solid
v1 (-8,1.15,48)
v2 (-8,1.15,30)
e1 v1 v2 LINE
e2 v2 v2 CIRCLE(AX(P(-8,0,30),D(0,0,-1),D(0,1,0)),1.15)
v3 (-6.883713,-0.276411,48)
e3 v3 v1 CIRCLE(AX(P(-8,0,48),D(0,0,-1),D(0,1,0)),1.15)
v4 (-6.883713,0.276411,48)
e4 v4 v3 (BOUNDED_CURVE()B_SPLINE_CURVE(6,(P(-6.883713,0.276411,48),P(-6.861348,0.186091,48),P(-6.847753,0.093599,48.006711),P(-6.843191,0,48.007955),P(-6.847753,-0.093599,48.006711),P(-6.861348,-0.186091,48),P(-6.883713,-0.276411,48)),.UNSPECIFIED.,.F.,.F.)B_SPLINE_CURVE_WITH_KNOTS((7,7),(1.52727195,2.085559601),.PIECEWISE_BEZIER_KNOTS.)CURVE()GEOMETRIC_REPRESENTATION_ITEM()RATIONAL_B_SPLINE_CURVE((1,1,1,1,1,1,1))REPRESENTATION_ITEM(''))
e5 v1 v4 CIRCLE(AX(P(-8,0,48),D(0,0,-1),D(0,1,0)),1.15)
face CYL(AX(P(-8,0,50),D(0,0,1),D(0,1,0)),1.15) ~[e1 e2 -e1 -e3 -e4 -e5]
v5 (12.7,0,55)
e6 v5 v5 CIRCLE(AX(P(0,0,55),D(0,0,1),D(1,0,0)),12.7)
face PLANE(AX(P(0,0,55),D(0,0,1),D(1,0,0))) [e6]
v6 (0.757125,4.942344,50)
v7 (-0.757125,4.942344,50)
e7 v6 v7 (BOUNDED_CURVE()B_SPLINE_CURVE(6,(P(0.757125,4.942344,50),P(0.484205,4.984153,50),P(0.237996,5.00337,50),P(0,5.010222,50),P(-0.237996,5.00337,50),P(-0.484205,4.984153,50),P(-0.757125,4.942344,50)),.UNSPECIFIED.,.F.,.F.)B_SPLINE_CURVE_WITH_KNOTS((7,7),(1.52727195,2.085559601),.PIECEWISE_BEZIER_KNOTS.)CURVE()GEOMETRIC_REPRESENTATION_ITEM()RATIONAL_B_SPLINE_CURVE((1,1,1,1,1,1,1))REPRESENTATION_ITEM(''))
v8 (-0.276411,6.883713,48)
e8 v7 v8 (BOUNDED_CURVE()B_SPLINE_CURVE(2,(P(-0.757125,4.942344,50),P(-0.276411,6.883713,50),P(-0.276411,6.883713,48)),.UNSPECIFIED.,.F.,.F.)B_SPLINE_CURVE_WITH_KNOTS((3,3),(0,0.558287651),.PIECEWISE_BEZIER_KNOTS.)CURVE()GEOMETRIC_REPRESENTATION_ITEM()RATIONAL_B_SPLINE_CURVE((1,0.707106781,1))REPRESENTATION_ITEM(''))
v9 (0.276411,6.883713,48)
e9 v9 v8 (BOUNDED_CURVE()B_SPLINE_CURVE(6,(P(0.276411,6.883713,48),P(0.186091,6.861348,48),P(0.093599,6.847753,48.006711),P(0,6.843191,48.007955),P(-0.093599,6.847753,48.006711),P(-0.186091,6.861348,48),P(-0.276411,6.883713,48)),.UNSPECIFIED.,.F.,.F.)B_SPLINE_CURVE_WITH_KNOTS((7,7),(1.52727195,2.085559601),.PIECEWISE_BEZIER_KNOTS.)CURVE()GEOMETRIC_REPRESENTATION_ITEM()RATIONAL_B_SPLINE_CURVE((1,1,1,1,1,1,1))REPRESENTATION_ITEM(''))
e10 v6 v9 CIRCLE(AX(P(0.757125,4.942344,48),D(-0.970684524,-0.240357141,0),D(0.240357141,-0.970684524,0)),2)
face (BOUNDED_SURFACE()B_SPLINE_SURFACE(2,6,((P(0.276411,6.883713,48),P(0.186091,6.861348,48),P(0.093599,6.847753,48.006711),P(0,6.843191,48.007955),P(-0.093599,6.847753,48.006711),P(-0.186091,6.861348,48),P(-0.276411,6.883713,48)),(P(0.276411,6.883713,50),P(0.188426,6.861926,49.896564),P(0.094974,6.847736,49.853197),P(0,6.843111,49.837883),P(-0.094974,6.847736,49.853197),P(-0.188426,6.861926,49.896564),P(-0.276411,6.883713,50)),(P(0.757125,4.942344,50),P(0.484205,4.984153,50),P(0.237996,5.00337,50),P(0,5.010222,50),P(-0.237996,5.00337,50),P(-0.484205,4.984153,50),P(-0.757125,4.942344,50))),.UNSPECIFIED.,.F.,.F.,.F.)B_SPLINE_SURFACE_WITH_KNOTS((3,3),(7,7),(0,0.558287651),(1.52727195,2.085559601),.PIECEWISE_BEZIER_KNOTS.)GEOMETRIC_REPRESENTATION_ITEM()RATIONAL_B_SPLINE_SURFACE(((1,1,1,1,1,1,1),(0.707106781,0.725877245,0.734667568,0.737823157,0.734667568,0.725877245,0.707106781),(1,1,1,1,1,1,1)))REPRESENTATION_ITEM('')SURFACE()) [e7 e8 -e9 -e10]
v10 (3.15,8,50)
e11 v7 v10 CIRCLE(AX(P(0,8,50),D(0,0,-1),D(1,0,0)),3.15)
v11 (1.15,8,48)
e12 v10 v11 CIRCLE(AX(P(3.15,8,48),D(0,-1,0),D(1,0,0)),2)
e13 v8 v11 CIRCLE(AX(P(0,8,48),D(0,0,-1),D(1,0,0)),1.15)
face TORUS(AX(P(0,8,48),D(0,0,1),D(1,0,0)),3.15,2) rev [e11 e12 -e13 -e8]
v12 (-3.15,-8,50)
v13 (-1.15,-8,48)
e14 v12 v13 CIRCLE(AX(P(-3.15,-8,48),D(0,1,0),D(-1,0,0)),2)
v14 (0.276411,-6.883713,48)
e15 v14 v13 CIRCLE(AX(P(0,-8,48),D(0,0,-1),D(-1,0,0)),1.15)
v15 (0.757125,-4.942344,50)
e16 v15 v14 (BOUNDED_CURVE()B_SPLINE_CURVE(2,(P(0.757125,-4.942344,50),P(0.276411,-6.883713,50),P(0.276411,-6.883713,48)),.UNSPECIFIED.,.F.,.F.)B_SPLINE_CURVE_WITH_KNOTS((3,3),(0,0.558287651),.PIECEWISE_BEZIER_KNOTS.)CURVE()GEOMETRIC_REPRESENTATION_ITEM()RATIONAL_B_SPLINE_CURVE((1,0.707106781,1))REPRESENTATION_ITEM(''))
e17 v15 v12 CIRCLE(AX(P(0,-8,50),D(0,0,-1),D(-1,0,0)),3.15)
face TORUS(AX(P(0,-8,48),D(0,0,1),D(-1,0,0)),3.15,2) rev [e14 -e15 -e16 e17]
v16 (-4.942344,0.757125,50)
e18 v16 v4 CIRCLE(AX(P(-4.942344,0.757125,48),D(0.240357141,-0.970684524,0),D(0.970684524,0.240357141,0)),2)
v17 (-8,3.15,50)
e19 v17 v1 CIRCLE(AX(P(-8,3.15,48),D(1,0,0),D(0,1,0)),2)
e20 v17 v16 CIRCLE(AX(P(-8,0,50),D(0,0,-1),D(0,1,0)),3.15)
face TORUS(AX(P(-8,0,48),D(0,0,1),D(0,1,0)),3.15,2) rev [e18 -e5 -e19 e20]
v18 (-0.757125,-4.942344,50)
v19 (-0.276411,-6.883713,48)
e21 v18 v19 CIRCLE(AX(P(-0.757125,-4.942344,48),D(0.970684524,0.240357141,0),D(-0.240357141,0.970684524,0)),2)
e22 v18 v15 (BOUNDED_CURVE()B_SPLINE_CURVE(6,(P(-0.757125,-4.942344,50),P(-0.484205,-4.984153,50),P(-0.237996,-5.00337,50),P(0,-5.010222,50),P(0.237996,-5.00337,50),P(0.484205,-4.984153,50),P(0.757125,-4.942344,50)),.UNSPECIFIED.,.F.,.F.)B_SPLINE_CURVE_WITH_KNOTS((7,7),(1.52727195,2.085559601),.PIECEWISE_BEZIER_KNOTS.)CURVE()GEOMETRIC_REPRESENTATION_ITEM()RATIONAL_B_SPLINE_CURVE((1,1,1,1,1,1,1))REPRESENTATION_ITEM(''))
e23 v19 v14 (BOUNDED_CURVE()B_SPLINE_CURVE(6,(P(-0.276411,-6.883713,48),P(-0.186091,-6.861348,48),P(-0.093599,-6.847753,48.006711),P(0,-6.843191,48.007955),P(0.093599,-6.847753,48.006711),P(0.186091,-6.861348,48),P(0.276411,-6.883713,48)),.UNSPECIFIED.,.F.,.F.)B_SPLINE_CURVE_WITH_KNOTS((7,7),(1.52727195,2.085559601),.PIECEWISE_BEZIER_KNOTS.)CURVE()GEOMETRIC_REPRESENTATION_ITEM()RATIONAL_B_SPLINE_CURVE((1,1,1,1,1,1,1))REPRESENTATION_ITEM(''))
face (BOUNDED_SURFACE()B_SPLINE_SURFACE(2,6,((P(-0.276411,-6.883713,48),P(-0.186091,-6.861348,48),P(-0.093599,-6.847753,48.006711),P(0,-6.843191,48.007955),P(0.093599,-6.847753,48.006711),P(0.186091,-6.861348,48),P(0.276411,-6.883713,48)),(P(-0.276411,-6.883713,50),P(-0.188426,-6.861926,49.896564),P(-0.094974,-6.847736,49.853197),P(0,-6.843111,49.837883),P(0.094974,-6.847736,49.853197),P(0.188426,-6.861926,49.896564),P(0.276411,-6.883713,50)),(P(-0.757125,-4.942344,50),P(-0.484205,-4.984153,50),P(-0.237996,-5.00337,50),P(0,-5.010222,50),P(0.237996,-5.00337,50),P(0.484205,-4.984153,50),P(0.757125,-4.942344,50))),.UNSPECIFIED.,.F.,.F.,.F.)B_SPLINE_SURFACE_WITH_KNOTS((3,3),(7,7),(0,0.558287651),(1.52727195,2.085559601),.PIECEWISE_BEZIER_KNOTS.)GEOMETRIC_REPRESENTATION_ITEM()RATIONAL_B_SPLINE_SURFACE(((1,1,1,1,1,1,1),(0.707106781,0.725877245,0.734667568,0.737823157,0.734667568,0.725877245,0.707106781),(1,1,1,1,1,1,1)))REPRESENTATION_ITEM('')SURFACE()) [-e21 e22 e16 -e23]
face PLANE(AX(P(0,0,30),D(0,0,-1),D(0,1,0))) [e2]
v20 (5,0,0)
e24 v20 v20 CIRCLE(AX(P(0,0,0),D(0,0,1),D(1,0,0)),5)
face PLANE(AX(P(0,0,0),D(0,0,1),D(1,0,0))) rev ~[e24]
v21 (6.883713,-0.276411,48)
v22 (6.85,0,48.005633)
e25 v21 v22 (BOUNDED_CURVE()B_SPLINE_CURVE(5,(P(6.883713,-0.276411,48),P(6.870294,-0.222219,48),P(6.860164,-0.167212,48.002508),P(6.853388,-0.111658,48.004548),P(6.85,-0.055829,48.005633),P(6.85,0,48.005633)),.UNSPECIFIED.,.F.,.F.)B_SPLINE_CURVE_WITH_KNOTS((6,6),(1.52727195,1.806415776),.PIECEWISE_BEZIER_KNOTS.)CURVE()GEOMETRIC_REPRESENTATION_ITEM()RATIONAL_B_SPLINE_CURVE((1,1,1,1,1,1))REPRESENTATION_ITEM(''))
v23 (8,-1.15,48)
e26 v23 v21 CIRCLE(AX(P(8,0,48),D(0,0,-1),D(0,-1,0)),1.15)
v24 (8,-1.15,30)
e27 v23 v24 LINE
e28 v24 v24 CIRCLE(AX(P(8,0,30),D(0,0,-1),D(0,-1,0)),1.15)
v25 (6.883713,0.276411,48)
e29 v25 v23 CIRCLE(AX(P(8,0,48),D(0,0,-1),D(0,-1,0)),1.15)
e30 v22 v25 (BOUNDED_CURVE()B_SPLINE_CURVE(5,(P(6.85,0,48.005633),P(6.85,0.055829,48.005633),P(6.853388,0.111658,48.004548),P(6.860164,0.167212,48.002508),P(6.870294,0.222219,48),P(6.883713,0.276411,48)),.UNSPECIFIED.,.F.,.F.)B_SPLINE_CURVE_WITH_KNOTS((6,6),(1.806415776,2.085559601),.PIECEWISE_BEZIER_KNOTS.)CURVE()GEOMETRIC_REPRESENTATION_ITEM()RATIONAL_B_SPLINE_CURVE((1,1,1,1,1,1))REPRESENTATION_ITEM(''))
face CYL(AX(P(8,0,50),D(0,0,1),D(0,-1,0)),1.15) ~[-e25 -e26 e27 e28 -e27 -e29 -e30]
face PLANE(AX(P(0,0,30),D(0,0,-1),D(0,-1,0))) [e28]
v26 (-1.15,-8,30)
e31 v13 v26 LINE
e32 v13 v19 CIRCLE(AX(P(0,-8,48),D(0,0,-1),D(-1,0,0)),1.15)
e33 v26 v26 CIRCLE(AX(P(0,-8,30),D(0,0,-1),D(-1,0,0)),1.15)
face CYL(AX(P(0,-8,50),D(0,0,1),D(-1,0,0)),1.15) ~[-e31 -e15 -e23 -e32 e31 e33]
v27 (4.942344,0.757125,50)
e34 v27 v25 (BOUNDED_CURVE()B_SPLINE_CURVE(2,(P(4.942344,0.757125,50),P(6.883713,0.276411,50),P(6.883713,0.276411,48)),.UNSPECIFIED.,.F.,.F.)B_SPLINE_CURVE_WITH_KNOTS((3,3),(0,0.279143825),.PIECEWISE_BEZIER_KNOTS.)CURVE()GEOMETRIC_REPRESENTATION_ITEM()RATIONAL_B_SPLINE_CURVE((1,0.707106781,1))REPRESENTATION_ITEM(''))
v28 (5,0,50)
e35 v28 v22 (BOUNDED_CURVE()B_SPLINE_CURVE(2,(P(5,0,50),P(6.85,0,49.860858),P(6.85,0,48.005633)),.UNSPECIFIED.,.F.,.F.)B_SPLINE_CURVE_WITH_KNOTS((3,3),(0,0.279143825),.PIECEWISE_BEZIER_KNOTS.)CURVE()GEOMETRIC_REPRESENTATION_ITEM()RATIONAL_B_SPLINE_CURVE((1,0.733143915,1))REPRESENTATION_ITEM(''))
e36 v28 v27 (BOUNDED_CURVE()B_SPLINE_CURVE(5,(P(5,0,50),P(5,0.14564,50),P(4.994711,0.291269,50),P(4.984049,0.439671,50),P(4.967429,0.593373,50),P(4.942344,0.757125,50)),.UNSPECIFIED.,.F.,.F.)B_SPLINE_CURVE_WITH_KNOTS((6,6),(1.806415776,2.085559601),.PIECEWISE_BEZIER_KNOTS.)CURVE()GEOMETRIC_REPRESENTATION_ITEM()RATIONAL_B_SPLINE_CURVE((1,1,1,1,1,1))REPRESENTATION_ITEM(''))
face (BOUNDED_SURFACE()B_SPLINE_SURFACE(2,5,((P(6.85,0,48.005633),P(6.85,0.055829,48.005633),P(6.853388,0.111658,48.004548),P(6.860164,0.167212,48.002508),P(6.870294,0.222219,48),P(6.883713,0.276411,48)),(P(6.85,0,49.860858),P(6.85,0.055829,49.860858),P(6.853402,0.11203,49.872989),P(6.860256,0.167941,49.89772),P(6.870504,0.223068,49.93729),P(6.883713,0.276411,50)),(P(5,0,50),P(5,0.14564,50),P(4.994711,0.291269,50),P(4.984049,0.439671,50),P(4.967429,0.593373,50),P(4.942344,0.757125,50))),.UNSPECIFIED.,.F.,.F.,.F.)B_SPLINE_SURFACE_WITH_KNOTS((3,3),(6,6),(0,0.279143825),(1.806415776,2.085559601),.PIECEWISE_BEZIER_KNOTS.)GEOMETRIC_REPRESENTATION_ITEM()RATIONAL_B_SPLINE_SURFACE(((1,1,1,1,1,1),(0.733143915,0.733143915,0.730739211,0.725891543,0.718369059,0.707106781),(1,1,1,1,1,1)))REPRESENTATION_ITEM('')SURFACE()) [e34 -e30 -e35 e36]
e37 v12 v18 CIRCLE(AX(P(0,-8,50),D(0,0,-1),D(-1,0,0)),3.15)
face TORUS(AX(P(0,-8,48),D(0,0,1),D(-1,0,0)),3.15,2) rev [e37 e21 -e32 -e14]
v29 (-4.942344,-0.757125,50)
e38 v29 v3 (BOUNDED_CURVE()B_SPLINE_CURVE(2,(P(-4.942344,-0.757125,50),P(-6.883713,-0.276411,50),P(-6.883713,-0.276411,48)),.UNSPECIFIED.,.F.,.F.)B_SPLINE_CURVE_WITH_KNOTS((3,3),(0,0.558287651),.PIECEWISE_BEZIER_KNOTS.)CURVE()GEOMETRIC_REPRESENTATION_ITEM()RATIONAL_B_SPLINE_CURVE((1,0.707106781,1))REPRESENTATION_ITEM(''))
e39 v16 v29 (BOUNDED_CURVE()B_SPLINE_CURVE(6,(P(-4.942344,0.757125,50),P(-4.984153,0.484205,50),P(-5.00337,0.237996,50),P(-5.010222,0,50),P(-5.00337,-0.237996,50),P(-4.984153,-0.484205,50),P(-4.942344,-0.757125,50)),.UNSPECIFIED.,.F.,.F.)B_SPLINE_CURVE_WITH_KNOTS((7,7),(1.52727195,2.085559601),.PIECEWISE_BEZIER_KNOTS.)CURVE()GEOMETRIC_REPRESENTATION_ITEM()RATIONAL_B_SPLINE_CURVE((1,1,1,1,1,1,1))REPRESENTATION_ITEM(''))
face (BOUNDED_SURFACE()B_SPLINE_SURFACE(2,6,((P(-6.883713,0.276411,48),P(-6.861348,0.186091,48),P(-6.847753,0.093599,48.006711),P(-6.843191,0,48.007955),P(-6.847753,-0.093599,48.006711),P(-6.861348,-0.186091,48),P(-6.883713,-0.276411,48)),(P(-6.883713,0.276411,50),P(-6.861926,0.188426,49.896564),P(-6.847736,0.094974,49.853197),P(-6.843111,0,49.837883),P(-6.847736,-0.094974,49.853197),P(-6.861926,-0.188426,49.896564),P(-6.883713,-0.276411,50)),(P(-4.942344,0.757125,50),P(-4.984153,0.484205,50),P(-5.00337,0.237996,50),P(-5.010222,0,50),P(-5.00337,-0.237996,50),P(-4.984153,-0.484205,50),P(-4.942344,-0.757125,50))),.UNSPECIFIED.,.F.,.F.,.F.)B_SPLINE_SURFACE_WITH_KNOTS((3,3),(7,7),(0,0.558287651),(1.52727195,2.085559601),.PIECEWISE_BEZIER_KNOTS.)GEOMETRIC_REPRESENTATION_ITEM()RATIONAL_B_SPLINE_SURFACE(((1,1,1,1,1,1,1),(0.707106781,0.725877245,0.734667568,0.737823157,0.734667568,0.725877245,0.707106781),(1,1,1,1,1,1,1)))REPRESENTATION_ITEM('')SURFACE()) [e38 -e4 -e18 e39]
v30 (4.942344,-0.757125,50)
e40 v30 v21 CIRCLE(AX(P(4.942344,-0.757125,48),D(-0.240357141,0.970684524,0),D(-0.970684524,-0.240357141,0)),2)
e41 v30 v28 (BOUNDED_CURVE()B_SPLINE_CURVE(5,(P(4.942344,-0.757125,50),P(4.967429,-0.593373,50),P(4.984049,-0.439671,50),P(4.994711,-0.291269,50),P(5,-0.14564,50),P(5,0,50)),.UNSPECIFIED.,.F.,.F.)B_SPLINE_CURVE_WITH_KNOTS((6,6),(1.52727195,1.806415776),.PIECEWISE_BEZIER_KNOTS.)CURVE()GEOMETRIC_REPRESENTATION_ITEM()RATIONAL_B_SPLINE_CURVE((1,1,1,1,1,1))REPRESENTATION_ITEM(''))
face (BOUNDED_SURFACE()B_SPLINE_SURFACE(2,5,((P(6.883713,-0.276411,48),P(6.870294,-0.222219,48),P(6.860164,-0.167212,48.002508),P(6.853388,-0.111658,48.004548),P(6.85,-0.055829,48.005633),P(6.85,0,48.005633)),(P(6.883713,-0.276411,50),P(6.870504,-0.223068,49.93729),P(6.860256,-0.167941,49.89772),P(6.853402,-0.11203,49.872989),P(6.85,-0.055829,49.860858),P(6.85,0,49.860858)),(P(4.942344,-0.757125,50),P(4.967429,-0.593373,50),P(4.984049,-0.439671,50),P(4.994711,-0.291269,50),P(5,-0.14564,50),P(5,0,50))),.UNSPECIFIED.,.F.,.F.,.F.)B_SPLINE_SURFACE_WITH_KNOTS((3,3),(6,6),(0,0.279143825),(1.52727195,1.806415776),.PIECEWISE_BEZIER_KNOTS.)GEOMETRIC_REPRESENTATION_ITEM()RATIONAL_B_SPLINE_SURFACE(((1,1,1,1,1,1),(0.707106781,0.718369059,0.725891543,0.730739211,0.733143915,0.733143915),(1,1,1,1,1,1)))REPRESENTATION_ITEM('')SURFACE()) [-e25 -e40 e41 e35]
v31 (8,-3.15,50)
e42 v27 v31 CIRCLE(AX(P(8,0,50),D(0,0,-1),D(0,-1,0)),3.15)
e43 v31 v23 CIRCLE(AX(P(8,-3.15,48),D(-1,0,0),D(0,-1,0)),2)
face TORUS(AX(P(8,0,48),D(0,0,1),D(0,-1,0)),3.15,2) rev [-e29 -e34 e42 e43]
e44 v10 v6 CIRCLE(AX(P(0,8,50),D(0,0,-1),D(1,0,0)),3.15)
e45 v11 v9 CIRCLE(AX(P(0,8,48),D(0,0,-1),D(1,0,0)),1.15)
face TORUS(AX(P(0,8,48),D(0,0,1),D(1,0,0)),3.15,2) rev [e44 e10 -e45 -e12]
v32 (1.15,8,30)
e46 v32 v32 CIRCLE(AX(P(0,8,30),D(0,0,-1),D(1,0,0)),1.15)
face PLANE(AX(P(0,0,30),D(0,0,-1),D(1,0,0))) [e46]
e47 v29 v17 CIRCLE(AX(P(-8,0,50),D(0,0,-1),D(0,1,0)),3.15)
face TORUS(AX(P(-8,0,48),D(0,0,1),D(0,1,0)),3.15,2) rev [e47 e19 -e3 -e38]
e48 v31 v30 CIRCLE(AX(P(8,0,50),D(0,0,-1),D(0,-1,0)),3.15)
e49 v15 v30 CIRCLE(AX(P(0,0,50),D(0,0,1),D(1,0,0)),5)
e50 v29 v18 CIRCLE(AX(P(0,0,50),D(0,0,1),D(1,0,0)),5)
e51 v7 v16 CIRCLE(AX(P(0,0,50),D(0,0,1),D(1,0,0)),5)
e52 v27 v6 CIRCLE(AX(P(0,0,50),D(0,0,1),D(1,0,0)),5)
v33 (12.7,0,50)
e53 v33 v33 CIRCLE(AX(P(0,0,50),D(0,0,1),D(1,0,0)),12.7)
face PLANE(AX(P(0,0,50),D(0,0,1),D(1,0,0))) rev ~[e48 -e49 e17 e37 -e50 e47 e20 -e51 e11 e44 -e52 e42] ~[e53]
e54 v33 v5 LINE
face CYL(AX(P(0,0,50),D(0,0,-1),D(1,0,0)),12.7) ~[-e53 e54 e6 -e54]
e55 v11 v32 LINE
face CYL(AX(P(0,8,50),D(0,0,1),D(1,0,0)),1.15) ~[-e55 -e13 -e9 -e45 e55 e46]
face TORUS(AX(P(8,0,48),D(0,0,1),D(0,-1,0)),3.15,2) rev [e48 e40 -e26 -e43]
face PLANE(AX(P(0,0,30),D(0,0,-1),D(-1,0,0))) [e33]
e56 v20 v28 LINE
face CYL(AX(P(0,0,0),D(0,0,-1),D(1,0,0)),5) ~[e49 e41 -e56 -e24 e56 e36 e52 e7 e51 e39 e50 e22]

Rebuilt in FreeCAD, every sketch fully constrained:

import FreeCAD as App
import Part
import Sketcher

V = App.Vector


def edges_at(feature, points):
    """Names of the edges that pass closest to the given points."""
    edges = feature.Shape.Edges
    near = lambda p: min(range(len(edges)), key=lambda i: edges[i].distToShape(Part.Vertex(*p))[0])
    return sorted({f"Edge{near(p) + 1}" for p in points})

doc = App.newDocument("Part")
body = doc.addObject("PartDesign::Body", "Body")

# Sketch on XY plane
sketch1 = body.newObject("Sketcher::SketchObject", "Sketch")
sketch1.AttachmentSupport = (doc.getObject("XY_Plane"), [""])
sketch1.MapMode = "FlatFace"
sketch1.addGeometry(Part.Circle(V(0, 0, 0), V(0, 0, 1), 5), False)
sketch1.addConstraint(Sketcher.Constraint("Coincident", 0, 3, -1, 1))
sketch1.addConstraint(Sketcher.Constraint("Diameter", 0, 10.0))
pad1 = body.newObject("PartDesign::Pad", "Pad")
pad1.Profile = sketch1
pad1.Length = 50

# Sketch on XY plane
sketch2 = body.newObject("Sketcher::SketchObject", "Sketch001")
sketch2.AttachmentSupport = (doc.getObject("XY_Plane"), [""])
sketch2.MapMode = "FlatFace"
sketch2.AttachmentOffset = App.Placement(V(0, 0, 50), App.Rotation())
sketch2.addGeometry(Part.Circle(V(0, 0, 0), V(0, 0, 1), 13), False)
sketch2.addConstraint(Sketcher.Constraint("Coincident", 0, 3, -1, 1))
sketch2.addConstraint(Sketcher.Constraint("Diameter", 0, 25.4))
pad2 = body.newObject("PartDesign::Pad", "Pad001")
pad2.Profile = sketch2
pad2.Length = 5

# Sketch on XY plane
sketch3 = body.newObject("Sketcher::SketchObject", "Sketch002")
sketch3.AttachmentSupport = (doc.getObject("XY_Plane"), [""])
sketch3.MapMode = "FlatFace"
sketch3.AttachmentOffset = App.Placement(V(0, 0, 50), App.Rotation())
sketch3.addGeometry(Part.Circle(V(0, -8, 0), V(0, 0, 1), 1.1), False)
sketch3.addConstraint(Sketcher.Constraint("PointOnObject", 0, 3, -2))
sketch3.addConstraint(Sketcher.Constraint("Diameter", 0, 2.3))
sketch3.addConstraint(Sketcher.Constraint("DistanceY", 0, 3, -1, 1, 8.0))
pad3 = body.newObject("PartDesign::Pad", "Pad002")
pad3.Profile = sketch3
pad3.Length = 20
pad3.Reversed = True
doc.recompute()

polarpattern = body.newObject("PartDesign::PolarPattern", "PolarPattern")
polarpattern.Originals = [pad3]
polarpattern.Axis = (doc.getObject("Z_Axis"), [""])
polarpattern.Angle = 360
polarpattern.Occurrences = 4
body.Tip = polarpattern
doc.recompute()

fillet = body.newObject("PartDesign::Fillet", "Fillet")
fillet.Base = (polarpattern, edges_at(polarpattern, [
    (8, 1.15, 50),
    (1.15, -8, 50),
    (-1.15, 8, 50),
    (-8, -1.15, 50),
]))
fillet.Radius = 2

doc.recompute()
